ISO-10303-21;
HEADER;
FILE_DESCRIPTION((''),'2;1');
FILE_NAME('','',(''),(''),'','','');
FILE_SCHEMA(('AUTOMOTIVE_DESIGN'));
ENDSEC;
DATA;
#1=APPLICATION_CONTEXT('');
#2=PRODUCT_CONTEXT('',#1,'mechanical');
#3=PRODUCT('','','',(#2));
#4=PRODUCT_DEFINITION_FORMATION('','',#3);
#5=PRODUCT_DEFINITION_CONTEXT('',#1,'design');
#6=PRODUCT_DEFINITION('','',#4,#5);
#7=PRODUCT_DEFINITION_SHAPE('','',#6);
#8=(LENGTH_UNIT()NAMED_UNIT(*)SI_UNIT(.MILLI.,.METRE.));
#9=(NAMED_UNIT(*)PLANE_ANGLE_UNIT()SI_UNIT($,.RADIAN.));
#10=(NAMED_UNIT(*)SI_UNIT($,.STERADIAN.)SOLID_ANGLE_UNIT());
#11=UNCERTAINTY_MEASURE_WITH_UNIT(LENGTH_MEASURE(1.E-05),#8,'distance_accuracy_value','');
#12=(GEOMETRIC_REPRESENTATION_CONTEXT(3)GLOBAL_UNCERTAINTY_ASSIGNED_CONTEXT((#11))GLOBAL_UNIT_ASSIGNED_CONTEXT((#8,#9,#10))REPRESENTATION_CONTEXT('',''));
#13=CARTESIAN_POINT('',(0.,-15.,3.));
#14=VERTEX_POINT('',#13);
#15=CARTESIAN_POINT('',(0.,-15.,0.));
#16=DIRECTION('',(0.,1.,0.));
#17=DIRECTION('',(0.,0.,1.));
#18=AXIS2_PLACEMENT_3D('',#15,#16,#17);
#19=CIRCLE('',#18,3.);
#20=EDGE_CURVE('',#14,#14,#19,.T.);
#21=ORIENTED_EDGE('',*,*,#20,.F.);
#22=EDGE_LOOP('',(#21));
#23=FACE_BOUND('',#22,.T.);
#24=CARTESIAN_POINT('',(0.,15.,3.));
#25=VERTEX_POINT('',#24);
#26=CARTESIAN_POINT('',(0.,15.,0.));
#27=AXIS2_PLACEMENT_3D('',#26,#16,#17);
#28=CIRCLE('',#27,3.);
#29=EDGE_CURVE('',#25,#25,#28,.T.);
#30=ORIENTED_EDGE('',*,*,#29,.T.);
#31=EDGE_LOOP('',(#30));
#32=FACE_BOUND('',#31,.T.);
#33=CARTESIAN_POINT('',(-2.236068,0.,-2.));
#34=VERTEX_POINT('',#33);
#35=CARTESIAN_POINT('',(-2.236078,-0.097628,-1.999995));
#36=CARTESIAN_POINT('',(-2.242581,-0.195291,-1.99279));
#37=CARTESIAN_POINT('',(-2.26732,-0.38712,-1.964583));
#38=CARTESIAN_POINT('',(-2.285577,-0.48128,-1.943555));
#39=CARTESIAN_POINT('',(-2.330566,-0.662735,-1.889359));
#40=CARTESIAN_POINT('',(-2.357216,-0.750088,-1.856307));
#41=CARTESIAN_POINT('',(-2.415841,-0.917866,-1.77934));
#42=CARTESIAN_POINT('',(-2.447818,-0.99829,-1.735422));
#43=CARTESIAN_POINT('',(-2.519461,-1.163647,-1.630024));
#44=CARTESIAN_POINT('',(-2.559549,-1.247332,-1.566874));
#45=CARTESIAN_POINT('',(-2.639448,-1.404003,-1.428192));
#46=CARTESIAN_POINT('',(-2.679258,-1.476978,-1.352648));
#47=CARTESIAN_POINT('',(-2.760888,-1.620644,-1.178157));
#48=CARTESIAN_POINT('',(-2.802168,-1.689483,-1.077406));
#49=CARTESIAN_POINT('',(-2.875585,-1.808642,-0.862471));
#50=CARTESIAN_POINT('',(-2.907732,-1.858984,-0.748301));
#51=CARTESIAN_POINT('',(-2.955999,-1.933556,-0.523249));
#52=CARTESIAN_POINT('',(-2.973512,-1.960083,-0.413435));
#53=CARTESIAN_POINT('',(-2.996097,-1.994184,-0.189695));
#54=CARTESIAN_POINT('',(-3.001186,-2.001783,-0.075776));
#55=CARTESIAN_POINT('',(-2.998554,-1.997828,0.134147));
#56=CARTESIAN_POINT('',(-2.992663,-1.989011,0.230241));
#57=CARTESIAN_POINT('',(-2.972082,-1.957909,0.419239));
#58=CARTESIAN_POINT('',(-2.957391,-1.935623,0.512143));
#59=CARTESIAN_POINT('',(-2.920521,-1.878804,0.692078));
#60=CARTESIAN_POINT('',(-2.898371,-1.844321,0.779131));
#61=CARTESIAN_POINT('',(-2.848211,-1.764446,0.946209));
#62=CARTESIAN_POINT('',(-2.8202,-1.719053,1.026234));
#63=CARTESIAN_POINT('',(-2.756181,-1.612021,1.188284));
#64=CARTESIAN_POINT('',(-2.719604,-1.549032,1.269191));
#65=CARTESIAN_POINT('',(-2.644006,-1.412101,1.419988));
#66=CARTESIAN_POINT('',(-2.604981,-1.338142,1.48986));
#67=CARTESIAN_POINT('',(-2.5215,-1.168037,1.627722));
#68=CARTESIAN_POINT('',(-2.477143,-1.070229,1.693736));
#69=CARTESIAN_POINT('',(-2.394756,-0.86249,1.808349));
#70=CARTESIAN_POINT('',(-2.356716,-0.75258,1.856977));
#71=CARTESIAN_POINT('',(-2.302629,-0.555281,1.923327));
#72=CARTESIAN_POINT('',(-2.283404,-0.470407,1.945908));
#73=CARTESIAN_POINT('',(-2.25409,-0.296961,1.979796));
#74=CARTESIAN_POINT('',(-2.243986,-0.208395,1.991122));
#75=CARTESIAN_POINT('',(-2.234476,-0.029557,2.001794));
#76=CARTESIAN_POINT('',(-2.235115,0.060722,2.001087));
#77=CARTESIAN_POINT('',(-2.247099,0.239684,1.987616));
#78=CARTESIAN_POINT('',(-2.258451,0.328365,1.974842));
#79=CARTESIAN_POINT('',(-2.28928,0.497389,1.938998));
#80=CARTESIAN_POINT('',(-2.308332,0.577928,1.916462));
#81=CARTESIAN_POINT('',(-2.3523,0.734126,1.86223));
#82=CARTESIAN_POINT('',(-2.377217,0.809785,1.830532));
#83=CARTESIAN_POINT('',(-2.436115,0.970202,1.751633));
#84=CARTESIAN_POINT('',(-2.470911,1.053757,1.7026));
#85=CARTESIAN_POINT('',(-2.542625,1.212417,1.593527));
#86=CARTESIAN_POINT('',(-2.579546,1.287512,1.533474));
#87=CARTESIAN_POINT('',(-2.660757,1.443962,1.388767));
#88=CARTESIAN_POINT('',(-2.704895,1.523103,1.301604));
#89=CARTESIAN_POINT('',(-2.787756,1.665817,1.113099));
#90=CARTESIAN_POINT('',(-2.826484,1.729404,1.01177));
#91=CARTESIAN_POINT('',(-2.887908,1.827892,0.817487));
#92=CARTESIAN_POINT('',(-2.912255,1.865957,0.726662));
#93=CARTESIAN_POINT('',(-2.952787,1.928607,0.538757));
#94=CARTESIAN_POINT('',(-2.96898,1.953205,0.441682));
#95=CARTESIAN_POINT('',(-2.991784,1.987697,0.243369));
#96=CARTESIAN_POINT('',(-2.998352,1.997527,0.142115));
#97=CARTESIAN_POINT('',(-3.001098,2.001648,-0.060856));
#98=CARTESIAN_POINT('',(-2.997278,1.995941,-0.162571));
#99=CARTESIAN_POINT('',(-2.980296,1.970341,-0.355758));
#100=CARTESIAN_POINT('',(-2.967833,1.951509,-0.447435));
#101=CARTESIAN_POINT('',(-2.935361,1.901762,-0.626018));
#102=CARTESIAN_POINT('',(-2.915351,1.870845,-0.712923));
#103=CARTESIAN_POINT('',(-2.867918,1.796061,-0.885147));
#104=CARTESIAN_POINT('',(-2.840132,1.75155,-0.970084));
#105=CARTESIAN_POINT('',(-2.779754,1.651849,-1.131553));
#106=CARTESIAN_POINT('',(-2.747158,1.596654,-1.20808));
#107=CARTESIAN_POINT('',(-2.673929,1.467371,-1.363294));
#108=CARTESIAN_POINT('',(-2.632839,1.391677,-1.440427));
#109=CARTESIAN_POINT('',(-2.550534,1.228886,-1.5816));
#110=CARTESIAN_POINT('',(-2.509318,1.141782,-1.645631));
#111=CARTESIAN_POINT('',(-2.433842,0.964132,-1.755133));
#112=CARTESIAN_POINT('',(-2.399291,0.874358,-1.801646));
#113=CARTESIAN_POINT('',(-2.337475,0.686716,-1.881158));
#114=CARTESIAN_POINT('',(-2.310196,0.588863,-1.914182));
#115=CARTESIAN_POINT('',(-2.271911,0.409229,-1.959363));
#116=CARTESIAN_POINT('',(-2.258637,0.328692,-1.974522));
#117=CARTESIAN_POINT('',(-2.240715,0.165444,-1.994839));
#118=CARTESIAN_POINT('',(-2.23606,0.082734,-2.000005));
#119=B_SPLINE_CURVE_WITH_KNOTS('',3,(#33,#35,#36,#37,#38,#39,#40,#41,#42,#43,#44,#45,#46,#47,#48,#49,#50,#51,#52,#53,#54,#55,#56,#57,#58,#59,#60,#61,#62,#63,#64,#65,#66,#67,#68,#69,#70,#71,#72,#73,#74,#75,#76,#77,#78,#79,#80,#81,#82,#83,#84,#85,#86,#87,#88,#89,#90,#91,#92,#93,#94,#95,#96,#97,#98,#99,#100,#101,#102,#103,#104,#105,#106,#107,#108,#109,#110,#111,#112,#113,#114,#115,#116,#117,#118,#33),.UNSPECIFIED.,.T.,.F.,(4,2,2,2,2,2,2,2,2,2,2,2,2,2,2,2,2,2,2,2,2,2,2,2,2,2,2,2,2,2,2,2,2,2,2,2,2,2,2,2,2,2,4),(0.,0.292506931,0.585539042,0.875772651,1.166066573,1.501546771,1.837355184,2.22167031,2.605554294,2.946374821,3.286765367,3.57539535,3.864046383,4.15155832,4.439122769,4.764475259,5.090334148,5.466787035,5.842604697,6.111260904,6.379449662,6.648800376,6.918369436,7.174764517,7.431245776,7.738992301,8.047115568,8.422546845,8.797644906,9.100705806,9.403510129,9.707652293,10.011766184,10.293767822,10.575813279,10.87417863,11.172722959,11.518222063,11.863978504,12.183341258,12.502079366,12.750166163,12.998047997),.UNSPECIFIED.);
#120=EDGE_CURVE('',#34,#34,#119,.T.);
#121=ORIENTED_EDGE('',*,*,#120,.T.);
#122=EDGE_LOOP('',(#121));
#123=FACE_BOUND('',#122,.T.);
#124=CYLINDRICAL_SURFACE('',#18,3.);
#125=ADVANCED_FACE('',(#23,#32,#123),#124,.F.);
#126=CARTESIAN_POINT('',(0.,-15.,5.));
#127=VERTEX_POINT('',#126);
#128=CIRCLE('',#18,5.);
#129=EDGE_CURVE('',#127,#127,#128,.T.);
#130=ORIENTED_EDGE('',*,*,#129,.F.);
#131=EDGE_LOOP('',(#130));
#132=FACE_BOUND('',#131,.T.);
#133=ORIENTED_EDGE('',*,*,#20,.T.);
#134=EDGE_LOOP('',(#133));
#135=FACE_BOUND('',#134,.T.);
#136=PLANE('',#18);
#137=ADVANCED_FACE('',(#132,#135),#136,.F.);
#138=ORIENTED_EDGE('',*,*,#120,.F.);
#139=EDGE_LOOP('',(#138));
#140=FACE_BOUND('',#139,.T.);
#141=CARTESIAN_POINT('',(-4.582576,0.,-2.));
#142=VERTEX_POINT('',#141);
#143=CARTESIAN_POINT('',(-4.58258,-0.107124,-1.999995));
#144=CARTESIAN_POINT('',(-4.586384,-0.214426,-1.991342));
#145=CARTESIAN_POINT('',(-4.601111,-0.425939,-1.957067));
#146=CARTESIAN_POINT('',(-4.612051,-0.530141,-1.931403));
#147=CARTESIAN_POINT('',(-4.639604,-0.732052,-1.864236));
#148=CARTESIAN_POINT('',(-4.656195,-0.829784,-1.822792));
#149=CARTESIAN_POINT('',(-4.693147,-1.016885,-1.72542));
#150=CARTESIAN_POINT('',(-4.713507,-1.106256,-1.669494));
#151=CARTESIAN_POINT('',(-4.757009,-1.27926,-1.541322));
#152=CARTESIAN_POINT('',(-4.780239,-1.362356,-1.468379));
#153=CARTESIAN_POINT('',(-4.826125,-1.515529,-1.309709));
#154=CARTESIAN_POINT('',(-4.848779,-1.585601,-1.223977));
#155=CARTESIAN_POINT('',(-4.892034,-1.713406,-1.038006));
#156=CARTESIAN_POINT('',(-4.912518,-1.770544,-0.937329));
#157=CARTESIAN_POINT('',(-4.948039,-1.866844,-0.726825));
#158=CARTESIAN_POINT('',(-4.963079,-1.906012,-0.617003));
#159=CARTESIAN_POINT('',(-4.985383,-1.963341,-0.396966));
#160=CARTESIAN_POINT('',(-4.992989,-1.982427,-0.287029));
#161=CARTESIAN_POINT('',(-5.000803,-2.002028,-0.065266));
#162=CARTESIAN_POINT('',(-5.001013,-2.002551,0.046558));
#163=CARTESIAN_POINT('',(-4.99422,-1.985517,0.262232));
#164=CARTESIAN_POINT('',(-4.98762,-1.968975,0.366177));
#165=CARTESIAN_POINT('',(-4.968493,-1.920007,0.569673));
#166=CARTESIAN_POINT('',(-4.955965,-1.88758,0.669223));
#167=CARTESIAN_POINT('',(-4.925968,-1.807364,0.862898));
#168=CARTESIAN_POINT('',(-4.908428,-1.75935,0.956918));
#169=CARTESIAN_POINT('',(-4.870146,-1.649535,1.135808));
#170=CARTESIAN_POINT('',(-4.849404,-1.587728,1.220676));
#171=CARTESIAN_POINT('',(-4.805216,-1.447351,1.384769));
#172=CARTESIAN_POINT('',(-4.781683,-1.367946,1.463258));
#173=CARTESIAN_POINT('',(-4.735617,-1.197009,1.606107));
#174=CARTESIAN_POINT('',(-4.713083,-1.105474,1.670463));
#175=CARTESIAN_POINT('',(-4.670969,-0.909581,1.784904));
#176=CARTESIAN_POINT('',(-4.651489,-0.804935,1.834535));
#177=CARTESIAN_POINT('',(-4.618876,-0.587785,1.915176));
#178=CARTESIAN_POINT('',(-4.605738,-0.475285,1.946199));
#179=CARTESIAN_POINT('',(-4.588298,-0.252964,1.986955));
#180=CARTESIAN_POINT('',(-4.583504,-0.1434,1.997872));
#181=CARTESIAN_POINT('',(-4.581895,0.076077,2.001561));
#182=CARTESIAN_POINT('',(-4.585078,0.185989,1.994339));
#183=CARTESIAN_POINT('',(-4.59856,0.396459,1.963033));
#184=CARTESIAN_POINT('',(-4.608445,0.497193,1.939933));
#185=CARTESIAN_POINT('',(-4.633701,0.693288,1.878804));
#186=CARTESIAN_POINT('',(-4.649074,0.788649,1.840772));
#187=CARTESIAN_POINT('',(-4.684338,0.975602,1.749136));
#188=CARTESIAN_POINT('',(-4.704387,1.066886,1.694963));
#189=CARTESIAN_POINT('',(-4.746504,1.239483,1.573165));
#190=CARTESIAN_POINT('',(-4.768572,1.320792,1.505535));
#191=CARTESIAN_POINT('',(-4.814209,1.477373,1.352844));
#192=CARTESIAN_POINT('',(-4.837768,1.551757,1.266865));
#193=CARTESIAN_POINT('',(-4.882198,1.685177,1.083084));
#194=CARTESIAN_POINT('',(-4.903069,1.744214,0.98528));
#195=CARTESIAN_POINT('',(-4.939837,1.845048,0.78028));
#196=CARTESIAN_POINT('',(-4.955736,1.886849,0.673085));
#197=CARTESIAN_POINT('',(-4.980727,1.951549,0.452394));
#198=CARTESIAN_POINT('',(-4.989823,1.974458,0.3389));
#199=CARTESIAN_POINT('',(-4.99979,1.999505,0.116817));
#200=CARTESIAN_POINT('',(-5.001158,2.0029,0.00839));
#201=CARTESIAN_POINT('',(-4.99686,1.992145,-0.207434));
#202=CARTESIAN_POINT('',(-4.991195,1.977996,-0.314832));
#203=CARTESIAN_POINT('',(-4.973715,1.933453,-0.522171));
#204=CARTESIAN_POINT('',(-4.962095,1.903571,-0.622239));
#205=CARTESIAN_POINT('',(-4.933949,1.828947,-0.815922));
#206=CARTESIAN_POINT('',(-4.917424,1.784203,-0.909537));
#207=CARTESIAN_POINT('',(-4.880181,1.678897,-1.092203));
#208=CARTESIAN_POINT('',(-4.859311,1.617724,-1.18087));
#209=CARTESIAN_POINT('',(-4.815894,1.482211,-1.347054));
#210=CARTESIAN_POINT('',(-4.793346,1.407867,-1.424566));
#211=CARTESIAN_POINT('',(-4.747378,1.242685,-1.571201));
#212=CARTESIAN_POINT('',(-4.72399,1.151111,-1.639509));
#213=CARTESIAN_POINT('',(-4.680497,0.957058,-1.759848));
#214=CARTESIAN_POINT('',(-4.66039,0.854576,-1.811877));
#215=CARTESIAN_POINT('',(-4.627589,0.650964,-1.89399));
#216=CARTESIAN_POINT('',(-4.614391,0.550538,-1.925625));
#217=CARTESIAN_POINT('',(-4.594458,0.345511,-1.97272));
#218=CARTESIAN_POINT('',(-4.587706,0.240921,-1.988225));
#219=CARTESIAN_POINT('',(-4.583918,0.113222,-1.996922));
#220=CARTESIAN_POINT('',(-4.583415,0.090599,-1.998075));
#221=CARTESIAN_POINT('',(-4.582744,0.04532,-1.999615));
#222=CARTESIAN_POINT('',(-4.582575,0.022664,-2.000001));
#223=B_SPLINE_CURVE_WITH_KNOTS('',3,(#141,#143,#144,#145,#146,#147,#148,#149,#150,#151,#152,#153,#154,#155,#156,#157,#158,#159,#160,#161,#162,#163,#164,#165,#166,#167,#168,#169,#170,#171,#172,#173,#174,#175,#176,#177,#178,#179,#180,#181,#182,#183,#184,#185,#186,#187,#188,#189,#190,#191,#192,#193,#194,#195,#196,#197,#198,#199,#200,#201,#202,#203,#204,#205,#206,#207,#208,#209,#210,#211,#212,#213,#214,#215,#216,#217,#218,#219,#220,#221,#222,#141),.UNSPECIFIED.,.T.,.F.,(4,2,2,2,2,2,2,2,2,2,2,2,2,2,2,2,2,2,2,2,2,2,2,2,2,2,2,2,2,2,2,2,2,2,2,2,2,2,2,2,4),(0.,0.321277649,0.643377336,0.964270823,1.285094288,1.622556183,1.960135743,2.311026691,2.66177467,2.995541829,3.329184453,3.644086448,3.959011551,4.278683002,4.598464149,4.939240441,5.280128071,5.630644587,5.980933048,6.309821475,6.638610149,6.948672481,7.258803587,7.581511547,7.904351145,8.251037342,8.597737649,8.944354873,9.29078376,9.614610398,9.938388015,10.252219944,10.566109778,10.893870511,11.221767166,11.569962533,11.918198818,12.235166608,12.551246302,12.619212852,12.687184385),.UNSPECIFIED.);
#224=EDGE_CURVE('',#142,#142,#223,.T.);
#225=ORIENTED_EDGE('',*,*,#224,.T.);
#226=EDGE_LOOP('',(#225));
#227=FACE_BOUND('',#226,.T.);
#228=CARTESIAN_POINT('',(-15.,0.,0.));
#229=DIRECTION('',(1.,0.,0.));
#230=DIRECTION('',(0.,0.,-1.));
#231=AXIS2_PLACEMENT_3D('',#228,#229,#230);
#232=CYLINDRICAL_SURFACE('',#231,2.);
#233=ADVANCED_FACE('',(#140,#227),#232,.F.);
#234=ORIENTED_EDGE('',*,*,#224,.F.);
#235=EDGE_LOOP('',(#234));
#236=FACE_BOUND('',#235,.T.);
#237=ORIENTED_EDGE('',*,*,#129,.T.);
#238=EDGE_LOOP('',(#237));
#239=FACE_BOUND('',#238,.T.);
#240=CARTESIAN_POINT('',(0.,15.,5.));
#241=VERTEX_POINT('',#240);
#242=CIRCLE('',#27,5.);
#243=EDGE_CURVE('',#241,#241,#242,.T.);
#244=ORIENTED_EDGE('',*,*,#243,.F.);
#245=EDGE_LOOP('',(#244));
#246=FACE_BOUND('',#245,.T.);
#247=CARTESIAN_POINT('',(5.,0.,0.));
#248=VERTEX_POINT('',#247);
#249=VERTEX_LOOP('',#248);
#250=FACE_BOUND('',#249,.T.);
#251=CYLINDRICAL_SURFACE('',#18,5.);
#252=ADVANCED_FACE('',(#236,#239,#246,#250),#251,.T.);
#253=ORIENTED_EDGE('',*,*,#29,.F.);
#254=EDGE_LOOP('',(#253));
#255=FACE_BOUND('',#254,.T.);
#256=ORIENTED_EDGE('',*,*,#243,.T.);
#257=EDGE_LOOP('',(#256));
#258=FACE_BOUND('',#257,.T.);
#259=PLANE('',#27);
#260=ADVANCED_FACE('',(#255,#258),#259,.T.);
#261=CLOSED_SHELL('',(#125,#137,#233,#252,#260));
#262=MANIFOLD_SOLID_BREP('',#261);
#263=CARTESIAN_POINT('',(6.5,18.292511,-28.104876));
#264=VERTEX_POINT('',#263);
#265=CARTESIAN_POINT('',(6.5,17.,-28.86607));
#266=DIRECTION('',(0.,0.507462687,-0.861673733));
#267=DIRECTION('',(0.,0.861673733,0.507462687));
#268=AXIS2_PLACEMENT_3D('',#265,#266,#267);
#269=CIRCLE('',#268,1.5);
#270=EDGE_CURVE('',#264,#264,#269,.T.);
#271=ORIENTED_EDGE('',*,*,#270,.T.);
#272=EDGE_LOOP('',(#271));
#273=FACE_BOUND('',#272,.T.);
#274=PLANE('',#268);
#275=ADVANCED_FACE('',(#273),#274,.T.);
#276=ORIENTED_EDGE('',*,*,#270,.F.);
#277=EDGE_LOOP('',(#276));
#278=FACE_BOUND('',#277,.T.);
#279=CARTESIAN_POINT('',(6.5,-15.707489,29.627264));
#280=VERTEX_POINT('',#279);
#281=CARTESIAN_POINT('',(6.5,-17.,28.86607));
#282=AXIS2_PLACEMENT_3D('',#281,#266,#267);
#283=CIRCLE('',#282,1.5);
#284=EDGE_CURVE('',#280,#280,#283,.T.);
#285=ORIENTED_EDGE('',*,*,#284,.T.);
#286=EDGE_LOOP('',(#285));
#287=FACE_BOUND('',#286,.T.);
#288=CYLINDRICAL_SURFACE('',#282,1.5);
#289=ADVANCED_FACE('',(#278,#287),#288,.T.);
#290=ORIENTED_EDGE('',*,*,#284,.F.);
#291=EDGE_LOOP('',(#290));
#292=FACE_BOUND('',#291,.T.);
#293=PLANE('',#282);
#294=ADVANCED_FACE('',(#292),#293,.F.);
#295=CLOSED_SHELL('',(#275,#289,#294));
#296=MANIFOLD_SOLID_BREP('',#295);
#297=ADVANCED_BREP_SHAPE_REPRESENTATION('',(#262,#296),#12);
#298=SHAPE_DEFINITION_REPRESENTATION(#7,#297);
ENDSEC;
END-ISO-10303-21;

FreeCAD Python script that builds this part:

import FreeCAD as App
import Part
import Sketcher
from FreeCAD import Vector
Q = App.Units.Quantity

doc = App.newDocument("Part")
params = doc.addObject("Spreadsheet::Sheet", "Params")
for row, (alias, value) in enumerate([
    ("sketch1_diameter", "10 mm"),
    ("sketch1_diameter2", "6 mm"),
    ("pad1_length", "15 mm"),
    ("pad1_length2", "15 mm"),
    ("sketch2_diameter", "4 mm"),
    ("pocket1_length", "15 mm"),
    ("sketch3_diameter", "3 mm"),
    ("sketch4_width", "67 mm"),
], start=1):
    params.set(f"A{row}", alias)
    params.set(f"B{row}", "=" + value)
    params.setAlias(f"B{row}", alias)

body = doc.addObject("PartDesign::Body", "Body")

sketch1 = body.newObject("Sketcher::SketchObject", "Sketch")
sketch1.AttachmentSupport = (doc.getObject("XZ_Plane"), [""])
sketch1.MapMode = "FlatFace"
sketch1.addGeometry(Part.Circle(Vector(0, 0, 0), Vector(0, 0, 1), 5), False)
sketch1.addGeometry(Part.Circle(Vector(0, 0, 0), Vector(0, 0, 1), 3), False)
sketch1.addConstraint(Sketcher.Constraint("Coincident", 0, 3, -1, 1))
sketch1.addConstraint(Sketcher.Constraint("Coincident", 1, 3, -1, 1))
sketch1.addConstraint(Sketcher.Constraint("Diameter", 0, Q("10 mm")))
sketch1.addConstraint(Sketcher.Constraint("Diameter", 1, Q("6 mm")))
sketch1.setExpression("Constraints[2]", "Params.sketch1_diameter")
sketch1.setExpression("Constraints[3]", "Params.sketch1_diameter2")
pad1 = body.newObject("PartDesign::Pad", "Pad")
pad1.Profile = sketch1
pad1.Type = "TwoLengths"
pad1.setExpression("Length", "Params.pad1_length")
pad1.setExpression("Length2", "Params.pad1_length2")
pad1.Reversed = True

sketch2 = body.newObject("Sketcher::SketchObject", "Sketch001")
sketch2.AttachmentSupport = (doc.getObject("YZ_Plane"), [""])
sketch2.MapMode = "FlatFace"
sketch2.addGeometry(Part.Circle(Vector(0, 0, 0), Vector(0, 0, 1), 2), False)
sketch2.addConstraint(Sketcher.Constraint("Coincident", 0, 3, -1, 1))
sketch2.addConstraint(Sketcher.Constraint("Diameter", 0, Q("4 mm")))
sketch2.setExpression("Constraints[1]", "Params.sketch2_diameter")
pocket1 = body.newObject("PartDesign::Pocket", "Pocket")
pocket1.Profile = sketch2
pocket1.setExpression("Length", "Params.pocket1_length")
body2 = doc.addObject("PartDesign::Body", "Body001")

sketch3 = body2.newObject("Sketcher::SketchObject", "Sketch002")
sketch3.Placement = App.Placement(Vector(5, -17, 28.86607), App.Rotation(Vector(-1, 0, 0), Vector(0, 0.861673733, 0.507462687), Vector(0, 0.507462687, -0.861673733), "ZXY"))
sketch3.addGeometry(Part.Circle(Vector(-1.5, 0, 0), Vector(0, 0, 1), 1.5), False)
sketch3.addConstraint(Sketcher.Constraint("PointOnObject", 0, 3, -1))
sketch3.addConstraint(Sketcher.Constraint("Diameter", 0, Q("3 mm")))
sketch3.addConstraint(Sketcher.Constraint("DistanceX", 0, 3, -1, 1, Q("1.5 mm")))
sketch3.setExpression("Constraints[1]", "Params.sketch3_diameter")

sketch4 = body2.newObject("Sketcher::SketchObject", "Sketch003")
sketch4.Placement = App.Placement(Vector(0, 0, 0), App.Rotation(Vector(0, 0.507462687, -0.861673733), Vector(1.000000001, 0, 0), Vector(0, -0.861673733, -0.507462687), "ZXY"))
sketch4.addGeometry(Part.LineSegment(Vector(-34, 5, 0), Vector(34, 5, 0)), False)
sketch4.addConstraint(Sketcher.Constraint("Horizontal", 0))
sketch4.addConstraint(Sketcher.Constraint("DistanceX", 0, 1, 0, 2, Q("67 mm")))
sketch4.addConstraint(Sketcher.Constraint("DistanceY", -1, 1, 0, 1, Q("5 mm")))
sketch4.addConstraint(Sketcher.Constraint("DistanceX", 0, 1, -1, 1, Q("33.5 mm")))
sketch4.setExpression("Constraints[1]", "Params.sketch4_width")
doc.recompute()

additivepipe = body2.newObject("PartDesign::AdditivePipe", "AdditivePipe")
additivepipe.Profile = sketch3
additivepipe.Spine = (sketch4, ["Edge1"])

doc.recompute()
